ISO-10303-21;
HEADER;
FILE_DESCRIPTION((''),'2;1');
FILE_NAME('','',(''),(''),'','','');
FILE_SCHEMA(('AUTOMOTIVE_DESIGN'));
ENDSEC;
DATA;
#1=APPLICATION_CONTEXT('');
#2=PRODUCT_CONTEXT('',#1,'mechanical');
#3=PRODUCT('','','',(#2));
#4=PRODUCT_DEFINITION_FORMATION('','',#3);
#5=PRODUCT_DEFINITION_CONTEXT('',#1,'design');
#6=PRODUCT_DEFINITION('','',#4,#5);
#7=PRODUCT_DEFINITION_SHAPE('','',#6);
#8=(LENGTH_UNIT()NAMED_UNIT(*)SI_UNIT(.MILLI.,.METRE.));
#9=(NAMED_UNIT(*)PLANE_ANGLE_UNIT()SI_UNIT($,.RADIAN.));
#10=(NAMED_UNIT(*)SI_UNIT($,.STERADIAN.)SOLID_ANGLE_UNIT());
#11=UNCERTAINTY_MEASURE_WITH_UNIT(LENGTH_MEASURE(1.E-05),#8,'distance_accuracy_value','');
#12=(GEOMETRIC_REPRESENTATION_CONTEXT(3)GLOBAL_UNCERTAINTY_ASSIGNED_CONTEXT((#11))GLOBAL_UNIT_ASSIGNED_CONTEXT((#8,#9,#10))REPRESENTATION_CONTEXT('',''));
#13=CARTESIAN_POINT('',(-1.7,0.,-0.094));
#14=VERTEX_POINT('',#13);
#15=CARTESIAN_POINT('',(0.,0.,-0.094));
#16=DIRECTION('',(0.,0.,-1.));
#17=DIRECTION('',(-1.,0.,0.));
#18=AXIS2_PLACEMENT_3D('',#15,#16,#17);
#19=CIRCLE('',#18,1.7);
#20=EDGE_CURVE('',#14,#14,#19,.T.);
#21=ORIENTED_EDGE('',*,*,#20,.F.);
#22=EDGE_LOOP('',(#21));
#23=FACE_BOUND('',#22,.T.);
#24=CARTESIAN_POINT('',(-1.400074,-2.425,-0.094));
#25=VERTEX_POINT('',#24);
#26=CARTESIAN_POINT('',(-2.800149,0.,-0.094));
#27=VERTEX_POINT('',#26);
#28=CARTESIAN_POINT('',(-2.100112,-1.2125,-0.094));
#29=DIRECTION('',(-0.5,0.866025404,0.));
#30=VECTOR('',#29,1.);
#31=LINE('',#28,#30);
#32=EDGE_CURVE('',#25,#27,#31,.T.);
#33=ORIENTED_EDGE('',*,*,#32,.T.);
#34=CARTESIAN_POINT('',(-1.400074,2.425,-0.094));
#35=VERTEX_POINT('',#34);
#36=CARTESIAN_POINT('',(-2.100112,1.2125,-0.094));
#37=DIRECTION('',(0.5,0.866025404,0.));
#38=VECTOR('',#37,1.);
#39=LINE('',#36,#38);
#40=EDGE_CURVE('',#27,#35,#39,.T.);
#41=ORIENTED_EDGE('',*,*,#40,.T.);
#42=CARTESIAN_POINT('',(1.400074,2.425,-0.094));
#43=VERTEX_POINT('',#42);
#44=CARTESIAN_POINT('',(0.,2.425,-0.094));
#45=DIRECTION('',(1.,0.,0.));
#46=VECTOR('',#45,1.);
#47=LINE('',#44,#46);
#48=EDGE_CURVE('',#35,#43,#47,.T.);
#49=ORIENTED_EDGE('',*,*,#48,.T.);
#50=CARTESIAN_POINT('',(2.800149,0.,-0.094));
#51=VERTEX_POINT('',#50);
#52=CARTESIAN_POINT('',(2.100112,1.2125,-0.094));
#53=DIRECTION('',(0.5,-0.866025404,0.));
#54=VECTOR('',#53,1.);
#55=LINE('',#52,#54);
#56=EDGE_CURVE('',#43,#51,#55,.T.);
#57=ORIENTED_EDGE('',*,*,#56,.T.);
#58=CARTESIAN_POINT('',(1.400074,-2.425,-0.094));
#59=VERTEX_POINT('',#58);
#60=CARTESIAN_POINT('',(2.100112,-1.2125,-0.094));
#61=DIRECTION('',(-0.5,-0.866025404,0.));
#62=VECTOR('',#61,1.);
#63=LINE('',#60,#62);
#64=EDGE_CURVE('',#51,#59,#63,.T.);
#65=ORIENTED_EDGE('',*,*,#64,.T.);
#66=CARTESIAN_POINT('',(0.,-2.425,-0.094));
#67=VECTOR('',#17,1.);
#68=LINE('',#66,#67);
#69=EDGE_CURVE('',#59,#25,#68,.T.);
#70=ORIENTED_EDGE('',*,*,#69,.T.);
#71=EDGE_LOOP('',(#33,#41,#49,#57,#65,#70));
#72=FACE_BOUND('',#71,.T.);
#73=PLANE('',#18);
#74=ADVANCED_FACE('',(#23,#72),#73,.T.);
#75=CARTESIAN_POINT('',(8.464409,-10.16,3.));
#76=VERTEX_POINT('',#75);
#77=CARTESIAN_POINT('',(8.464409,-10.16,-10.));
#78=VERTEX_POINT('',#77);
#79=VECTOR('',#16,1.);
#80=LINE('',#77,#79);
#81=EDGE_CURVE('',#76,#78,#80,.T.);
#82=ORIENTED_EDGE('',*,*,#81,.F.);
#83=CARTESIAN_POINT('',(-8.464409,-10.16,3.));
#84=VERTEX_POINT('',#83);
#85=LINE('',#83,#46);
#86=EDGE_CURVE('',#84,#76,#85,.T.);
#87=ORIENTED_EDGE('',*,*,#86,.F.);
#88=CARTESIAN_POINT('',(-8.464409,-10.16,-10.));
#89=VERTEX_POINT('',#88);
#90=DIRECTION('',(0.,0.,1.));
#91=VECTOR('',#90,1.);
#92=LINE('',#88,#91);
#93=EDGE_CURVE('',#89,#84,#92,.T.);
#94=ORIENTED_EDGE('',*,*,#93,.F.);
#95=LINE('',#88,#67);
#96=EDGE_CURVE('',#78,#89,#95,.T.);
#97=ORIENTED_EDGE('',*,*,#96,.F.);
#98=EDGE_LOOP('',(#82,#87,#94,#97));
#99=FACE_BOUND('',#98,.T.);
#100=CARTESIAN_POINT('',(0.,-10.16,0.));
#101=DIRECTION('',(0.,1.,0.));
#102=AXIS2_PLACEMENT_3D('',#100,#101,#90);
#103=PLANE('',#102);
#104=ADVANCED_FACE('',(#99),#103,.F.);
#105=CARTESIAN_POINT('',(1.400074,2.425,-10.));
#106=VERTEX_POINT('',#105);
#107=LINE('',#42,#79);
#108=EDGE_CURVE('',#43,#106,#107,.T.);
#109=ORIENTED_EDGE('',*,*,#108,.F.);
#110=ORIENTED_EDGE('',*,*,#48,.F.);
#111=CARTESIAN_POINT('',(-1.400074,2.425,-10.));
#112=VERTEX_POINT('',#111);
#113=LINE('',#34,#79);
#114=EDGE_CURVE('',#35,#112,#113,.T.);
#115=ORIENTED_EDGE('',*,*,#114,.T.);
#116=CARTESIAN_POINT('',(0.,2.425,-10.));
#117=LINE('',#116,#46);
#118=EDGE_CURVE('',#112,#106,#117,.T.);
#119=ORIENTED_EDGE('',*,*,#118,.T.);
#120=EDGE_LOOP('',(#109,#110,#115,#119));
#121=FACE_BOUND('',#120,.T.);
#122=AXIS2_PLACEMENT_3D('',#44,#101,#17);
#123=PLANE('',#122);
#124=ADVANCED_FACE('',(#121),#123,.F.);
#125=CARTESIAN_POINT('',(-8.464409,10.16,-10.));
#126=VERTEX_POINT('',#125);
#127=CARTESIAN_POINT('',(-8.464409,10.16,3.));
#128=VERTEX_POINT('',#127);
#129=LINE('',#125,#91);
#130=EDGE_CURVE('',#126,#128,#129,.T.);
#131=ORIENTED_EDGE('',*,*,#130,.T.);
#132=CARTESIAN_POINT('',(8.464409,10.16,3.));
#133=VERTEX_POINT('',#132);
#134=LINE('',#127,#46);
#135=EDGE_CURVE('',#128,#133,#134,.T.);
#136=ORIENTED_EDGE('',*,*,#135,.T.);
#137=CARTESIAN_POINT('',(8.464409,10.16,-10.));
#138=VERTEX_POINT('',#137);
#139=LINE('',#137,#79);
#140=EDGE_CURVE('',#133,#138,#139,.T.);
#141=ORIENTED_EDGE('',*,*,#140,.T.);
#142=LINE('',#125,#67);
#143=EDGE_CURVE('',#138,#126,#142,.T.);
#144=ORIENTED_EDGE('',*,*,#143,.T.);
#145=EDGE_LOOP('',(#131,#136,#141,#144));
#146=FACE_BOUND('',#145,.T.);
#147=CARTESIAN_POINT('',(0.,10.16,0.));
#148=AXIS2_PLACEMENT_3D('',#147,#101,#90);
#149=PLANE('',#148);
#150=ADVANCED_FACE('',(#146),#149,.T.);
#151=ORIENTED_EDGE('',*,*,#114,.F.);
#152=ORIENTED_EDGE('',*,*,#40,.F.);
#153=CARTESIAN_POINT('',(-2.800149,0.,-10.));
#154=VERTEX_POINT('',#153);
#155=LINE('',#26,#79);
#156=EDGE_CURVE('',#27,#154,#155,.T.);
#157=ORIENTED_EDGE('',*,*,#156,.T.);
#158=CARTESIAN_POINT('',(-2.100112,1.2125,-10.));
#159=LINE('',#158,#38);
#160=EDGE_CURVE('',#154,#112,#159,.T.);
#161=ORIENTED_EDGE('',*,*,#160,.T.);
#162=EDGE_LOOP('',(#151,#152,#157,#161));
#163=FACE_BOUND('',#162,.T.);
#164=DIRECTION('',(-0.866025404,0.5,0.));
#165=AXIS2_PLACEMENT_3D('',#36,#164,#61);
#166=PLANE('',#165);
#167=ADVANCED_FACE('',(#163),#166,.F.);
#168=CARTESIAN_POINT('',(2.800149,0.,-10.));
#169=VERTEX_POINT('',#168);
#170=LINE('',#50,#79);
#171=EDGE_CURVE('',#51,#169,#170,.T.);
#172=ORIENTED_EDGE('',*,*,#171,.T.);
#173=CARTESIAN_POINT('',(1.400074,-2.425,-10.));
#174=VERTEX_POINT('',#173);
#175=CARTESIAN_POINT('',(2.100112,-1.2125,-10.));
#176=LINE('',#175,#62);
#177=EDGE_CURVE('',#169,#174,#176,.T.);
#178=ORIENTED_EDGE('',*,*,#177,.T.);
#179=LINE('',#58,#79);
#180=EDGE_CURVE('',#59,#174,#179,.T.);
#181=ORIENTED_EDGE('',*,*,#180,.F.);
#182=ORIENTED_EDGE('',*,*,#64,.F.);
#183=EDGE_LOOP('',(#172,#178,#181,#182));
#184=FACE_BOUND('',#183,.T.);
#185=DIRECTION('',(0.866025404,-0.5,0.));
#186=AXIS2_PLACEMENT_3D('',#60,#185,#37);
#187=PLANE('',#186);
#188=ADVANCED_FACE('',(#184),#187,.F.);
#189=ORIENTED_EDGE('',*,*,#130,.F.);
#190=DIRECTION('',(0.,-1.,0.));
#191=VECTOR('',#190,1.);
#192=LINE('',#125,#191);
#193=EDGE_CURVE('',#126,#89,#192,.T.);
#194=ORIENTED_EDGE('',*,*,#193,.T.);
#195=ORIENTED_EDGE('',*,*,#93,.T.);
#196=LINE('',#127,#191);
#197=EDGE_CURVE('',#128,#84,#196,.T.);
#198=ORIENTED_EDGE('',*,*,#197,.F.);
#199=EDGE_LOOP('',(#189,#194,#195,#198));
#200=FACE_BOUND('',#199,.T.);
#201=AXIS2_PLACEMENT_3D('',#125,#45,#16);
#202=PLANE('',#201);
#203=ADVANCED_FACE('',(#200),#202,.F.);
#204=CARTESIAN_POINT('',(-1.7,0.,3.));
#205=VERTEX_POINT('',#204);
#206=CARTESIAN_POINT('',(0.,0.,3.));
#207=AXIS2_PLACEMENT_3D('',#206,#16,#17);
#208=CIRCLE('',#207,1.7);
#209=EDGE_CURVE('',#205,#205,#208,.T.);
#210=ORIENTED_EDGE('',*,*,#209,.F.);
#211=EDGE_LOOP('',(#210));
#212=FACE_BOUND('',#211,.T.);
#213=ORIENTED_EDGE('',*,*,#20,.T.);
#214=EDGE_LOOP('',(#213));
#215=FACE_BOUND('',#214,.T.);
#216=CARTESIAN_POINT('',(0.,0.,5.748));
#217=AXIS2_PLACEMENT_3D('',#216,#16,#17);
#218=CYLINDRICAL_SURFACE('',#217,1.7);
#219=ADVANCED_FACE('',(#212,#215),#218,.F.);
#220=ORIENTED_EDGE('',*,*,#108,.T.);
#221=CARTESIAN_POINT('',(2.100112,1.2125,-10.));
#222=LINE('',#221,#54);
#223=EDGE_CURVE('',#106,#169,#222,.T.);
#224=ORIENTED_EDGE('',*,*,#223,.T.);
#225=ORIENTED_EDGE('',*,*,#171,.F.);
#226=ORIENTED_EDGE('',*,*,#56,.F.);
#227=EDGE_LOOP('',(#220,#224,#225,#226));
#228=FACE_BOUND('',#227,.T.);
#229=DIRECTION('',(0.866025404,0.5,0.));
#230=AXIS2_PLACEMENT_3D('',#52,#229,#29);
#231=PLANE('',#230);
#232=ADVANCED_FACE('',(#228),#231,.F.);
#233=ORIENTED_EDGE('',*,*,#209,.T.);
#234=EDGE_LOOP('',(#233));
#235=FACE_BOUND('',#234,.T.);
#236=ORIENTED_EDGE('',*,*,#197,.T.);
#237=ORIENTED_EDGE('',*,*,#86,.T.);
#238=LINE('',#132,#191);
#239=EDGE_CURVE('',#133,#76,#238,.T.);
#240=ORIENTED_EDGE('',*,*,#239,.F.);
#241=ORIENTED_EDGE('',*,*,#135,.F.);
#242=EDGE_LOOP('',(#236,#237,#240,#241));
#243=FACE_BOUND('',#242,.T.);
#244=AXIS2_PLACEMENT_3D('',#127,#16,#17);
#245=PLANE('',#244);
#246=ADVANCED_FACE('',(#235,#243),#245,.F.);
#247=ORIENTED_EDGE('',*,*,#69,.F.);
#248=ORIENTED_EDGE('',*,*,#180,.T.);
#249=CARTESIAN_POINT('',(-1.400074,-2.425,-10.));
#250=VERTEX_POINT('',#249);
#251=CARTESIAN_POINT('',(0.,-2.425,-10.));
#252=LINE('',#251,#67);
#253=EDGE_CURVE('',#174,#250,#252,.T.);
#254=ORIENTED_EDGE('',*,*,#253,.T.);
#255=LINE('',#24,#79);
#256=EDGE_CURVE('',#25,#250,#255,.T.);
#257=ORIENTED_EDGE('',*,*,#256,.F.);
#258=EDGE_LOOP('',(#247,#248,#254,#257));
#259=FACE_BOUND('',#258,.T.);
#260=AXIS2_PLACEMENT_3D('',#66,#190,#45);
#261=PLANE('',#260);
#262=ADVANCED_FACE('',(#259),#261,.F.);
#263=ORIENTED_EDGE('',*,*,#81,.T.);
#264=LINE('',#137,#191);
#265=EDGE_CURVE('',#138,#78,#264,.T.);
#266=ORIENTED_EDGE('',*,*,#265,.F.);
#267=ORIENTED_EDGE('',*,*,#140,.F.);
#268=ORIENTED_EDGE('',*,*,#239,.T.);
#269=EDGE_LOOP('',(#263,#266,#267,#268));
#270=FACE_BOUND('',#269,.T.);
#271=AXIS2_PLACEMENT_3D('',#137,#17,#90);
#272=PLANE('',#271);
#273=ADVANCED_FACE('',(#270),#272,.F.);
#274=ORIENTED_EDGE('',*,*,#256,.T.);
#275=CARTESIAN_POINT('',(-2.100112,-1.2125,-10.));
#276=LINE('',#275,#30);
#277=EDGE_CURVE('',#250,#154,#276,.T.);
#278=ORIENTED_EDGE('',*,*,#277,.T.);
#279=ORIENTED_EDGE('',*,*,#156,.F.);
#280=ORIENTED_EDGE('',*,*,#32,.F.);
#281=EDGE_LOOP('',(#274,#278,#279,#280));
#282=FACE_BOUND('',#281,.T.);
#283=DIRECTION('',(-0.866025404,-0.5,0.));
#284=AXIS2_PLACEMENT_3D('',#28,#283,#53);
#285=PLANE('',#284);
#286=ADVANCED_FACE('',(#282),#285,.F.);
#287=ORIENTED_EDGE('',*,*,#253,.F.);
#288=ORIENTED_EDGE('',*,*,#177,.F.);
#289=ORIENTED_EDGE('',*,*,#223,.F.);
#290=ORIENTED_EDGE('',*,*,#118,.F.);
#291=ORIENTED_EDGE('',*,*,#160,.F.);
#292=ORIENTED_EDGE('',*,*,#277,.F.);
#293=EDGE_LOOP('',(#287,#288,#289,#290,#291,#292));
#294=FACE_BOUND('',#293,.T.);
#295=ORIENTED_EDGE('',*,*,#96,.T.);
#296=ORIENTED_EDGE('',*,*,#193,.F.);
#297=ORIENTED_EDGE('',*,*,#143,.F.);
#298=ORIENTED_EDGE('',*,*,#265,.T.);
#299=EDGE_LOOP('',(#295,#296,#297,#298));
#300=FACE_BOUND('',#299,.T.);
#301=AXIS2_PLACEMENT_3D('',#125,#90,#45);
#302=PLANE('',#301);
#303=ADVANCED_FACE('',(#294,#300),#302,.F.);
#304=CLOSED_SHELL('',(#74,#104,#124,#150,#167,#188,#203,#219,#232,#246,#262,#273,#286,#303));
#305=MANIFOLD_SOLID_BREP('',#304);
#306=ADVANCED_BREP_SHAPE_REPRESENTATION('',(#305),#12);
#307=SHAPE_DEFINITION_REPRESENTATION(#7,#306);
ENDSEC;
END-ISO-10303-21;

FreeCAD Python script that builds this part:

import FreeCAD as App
import Part
import Sketcher

V = App.Vector
Q = App.Units.Quantity


def add_polygon(sketch, points):
    """Adds a closed chain of lines whose ends are joined by coincident constraints."""
    first, n = sketch.GeometryCount, len(points)
    for a, b in zip(points, points[1:] + points[:1]):
        sketch.addGeometry(Part.LineSegment(App.Vector(*a, 0), App.Vector(*b, 0)), False)
    for i in range(n):
        sketch.addConstraint(Sketcher.Constraint("Coincident", first + i, 2, first + (i + 1) % n, 1))

doc = App.newDocument("Part")
body = doc.addObject("PartDesign::Body", "Body")

# Sketch on XZ plane
sketch1 = doc.addObject("Sketcher::SketchObject", "Sketch")
body.addObject(sketch1)
sketch1.AttachmentSupport = (doc.XZ_Plane, [""])
sketch1.MapMode = "FlatFace"
add_polygon(sketch1, [(-8, -10), (-8, 3), (8, 3), (8, -10)])  # lines 0-3
sketch1.addConstraint(Sketcher.Constraint("Vertical", 0))
sketch1.addConstraint(Sketcher.Constraint("Horizontal", 1))
sketch1.addConstraint(Sketcher.Constraint("Vertical", 2))
sketch1.addConstraint(Sketcher.Constraint("Horizontal", 3))
sketch1.addConstraint(Sketcher.Constraint("DistanceY", 0, 1, 0, 2, 13.0))
sketch1.addConstraint(Sketcher.Constraint("DistanceY", -1, 1, 0, 2, 3.0))
sketch1.addConstraint(Sketcher.Constraint("DistanceX", 1, 1, 1, 2, 16.928818))
sketch1.addConstraint(Sketcher.Constraint("DistanceX", 0, 2, -1, 1, 8.464409))
pad1 = doc.addObject("PartDesign::Pad", "Pad")
body.addObject(pad1)
pad1.Profile = sketch1
pad1.Length = Q("0.8 in")
pad1.Midplane = True

# Sketch on XY plane
sketch2 = doc.addObject("Sketcher::SketchObject", "Sketch001")
body.addObject(sketch2)
sketch2.AttachmentSupport = (doc.XY_Plane, [""])
sketch2.MapMode = "FlatFace"
sketch2.AttachmentOffset = App.Placement(V(0, 0, -10), App.Rotation())
add_polygon(sketch2, [(1.4, -2.4), (-1.4, -2.4), (-2.8, 0), (-1.4, 2.4), (1.4, 2.4), (2.8, 0)])  # lines 0-5
sketch2.addGeometry(Part.Circle(V(0, 0, 0), V(0, 0, 1), 1.7), False)  # 6
sketch2.addConstraint(Sketcher.Constraint("Horizontal", 0))
sketch2.addConstraint(Sketcher.Constraint("Horizontal", 3))
sketch2.addConstraint(Sketcher.Constraint("Coincident", 6, 3, -1, 1))
sketch2.addConstraint(Sketcher.Constraint("Symmetric", 0, 2, 3, 2, -1, 1))
sketch2.addConstraint(Sketcher.Constraint("Symmetric", 1, 2, 4, 2, -1, 1))
sketch2.addConstraint(Sketcher.Constraint("PointOnObject", 1, 2, -1))
sketch2.addConstraint(Sketcher.Constraint("Parallel", 2, 5))
sketch2.addConstraint(Sketcher.Constraint("Vertical", 0, 2, 2, 2))
sketch2.addConstraint(Sketcher.Constraint("Angle", 1, Q("120 deg")))
sketch2.addConstraint(Sketcher.Constraint("Diameter", 6, 3.4))
sketch2.addConstraint(Sketcher.Constraint("DistanceX", 0, 2, 0, 1, 2.800149))
sketch2.addConstraint(Sketcher.Constraint("DistanceY", 0, 2, -1, 1, 2.425))
pocket1 = doc.addObject("PartDesign::Pocket", "Pocket")
body.addObject(pocket1)
pocket1.Profile = sketch2
pocket1.Length = Q("0.39 in")
pocket1.Reversed = True

# Sketch on XY plane
sketch3 = doc.addObject("Sketcher::SketchObject", "Sketch002")
body.addObject(sketch3)
sketch3.AttachmentSupport = (doc.XY_Plane, [""])
sketch3.MapMode = "FlatFace"
sketch3.AttachmentOffset = App.Placement(V(0, 0, -10), App.Rotation())
sketch3.addGeometry(Part.Circle(V(0, 0, 0), V(0, 0, 1), 1.7), False)
sketch3.addConstraint(Sketcher.Constraint("Coincident", 0, 3, -1, 1))
sketch3.addConstraint(Sketcher.Constraint("Diameter", 0, 3.4))
pocket2 = doc.addObject("PartDesign::Pocket", "Pocket001")
body.addObject(pocket2)
pocket2.Profile = sketch3
pocket2.Length = Q("0.62 in")
pocket2.Reversed = True

doc.recompute()
